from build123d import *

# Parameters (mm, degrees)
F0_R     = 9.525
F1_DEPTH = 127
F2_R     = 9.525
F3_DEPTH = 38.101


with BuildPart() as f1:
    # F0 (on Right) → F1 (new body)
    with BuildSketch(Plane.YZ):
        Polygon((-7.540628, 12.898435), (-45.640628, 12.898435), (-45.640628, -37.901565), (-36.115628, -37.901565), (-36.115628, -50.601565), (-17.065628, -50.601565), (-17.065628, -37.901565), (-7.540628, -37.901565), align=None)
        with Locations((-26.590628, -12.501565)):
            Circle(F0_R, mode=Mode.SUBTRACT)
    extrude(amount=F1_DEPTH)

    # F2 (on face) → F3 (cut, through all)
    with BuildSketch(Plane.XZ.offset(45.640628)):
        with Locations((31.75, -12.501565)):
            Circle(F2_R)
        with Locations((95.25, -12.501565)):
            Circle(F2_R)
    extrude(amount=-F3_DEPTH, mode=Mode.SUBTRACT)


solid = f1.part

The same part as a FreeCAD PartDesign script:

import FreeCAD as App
import Part
import Sketcher
from FreeCAD import Vector
Q = App.Units.Quantity


def add_polygon(sketch, points):
    """Adds a closed chain of lines whose ends are joined by coincident constraints."""
    first, n = sketch.GeometryCount, len(points)
    for a, b in zip(points, points[1:] + points[:1]):
        sketch.addGeometry(Part.LineSegment(App.Vector(*a, 0), App.Vector(*b, 0)), False)
    for i in range(n):
        sketch.addConstraint(Sketcher.Constraint("Coincident", first + i, 2, first + (i + 1) % n, 1))

doc = App.newDocument("Part")
body = doc.addObject("PartDesign::Body", "Body")

# Sketch on YZ plane
sketch1 = doc.addObject("Sketcher::SketchObject", "Sketch")
body.addObject(sketch1)
sketch1.AttachmentSupport = (doc.YZ_Plane, [""])
sketch1.MapMode = "FlatFace"
add_polygon(sketch1, [(-8, 13), (-46, 13), (-46, -38), (-36, -38), (-36, -51), (-17, -51), (-17, -38), (-8, -38)])  # lines 0-7
sketch1.addGeometry(Part.Circle(Vector(-27, -13, 0), Vector(0, 0, 1), 10), False)  # 8
sketch1.addConstraint([
    Sketcher.Constraint("Horizontal", 0),
    Sketcher.Constraint("Vertical", 1),
    Sketcher.Constraint("Horizontal", 2),
    Sketcher.Constraint("Vertical", 3),
    Sketcher.Constraint("Horizontal", 4),
    Sketcher.Constraint("Vertical", 5),
    Sketcher.Constraint("Horizontal", 6),
    Sketcher.Constraint("Vertical", 7),
    Sketcher.Constraint("Horizontal", 2, 2, 5, 2),
    Sketcher.Constraint("Equal", 2, 6),
    Sketcher.Constraint("Diameter", 8, Q("0.75 in")),
    Sketcher.Constraint("DistanceY", 1, 2, 1, 1, Q("2 in")),
    Sketcher.Constraint("DistanceX", 0, 2, 0, 1, Q("1.5 in")),
    Sketcher.Constraint("DistanceY", 3, 2, 3, 1, Q("0.5 in")),
    Sketcher.Constraint("DistanceY", 8, 3, 0, 2, Q("1 in")),
    Sketcher.Constraint("DistanceX", 4, 1, 4, 2, Q("0.75 in")),
    Sketcher.Constraint("DistanceX", 0, 2, 8, 3, Q("0.75 in")),
    Sketcher.Constraint("DistanceX", 8, 3, -1, 1, Q("1.0468751 in")),
    Sketcher.Constraint("DistanceY", 8, 3, -1, 1, 12.501565),
])
pad1 = doc.addObject("PartDesign::Pad", "Pad")
body.addObject(pad1)
pad1.Profile = sketch1
pad1.Length = Q("5 in")

# Sketch on XZ plane
sketch2 = doc.addObject("Sketcher::SketchObject", "Sketch001")
body.addObject(sketch2)
sketch2.AttachmentSupport = (doc.XZ_Plane, [""])
sketch2.MapMode = "FlatFace"
sketch2.AttachmentOffset = App.Placement(Vector(0, 0, 1.7968751 * 25.4), App.Rotation())
sketch2.addGeometry([
    Part.Circle(Vector(32, -13, 0), Vector(0, 0, 1), 10),
    Part.Circle(Vector(95, -13, 0), Vector(0, 0, 1), 10),
], False)
sketch2.addConstraint([
    Sketcher.Constraint("Equal", 0, 1),
    Sketcher.Constraint("Horizontal", 0, 3, 1, 3),
    Sketcher.Constraint("Diameter", 0, Q("0.75 in")),
    Sketcher.Constraint("DistanceX", 0, 3, 1, 3, Q("2.5 in")),
    Sketcher.Constraint("DistanceX", -1, 1, 0, 3, Q("1.25 in")),
    Sketcher.Constraint("DistanceY", 0, 3, -1, 1, 12.501565),
])
pocket1 = doc.addObject("PartDesign::Pocket", "Pocket")
body.addObject(pocket1)
pocket1.Profile = sketch2
pocket1.Type = "ThroughAll"

doc.recompute()
